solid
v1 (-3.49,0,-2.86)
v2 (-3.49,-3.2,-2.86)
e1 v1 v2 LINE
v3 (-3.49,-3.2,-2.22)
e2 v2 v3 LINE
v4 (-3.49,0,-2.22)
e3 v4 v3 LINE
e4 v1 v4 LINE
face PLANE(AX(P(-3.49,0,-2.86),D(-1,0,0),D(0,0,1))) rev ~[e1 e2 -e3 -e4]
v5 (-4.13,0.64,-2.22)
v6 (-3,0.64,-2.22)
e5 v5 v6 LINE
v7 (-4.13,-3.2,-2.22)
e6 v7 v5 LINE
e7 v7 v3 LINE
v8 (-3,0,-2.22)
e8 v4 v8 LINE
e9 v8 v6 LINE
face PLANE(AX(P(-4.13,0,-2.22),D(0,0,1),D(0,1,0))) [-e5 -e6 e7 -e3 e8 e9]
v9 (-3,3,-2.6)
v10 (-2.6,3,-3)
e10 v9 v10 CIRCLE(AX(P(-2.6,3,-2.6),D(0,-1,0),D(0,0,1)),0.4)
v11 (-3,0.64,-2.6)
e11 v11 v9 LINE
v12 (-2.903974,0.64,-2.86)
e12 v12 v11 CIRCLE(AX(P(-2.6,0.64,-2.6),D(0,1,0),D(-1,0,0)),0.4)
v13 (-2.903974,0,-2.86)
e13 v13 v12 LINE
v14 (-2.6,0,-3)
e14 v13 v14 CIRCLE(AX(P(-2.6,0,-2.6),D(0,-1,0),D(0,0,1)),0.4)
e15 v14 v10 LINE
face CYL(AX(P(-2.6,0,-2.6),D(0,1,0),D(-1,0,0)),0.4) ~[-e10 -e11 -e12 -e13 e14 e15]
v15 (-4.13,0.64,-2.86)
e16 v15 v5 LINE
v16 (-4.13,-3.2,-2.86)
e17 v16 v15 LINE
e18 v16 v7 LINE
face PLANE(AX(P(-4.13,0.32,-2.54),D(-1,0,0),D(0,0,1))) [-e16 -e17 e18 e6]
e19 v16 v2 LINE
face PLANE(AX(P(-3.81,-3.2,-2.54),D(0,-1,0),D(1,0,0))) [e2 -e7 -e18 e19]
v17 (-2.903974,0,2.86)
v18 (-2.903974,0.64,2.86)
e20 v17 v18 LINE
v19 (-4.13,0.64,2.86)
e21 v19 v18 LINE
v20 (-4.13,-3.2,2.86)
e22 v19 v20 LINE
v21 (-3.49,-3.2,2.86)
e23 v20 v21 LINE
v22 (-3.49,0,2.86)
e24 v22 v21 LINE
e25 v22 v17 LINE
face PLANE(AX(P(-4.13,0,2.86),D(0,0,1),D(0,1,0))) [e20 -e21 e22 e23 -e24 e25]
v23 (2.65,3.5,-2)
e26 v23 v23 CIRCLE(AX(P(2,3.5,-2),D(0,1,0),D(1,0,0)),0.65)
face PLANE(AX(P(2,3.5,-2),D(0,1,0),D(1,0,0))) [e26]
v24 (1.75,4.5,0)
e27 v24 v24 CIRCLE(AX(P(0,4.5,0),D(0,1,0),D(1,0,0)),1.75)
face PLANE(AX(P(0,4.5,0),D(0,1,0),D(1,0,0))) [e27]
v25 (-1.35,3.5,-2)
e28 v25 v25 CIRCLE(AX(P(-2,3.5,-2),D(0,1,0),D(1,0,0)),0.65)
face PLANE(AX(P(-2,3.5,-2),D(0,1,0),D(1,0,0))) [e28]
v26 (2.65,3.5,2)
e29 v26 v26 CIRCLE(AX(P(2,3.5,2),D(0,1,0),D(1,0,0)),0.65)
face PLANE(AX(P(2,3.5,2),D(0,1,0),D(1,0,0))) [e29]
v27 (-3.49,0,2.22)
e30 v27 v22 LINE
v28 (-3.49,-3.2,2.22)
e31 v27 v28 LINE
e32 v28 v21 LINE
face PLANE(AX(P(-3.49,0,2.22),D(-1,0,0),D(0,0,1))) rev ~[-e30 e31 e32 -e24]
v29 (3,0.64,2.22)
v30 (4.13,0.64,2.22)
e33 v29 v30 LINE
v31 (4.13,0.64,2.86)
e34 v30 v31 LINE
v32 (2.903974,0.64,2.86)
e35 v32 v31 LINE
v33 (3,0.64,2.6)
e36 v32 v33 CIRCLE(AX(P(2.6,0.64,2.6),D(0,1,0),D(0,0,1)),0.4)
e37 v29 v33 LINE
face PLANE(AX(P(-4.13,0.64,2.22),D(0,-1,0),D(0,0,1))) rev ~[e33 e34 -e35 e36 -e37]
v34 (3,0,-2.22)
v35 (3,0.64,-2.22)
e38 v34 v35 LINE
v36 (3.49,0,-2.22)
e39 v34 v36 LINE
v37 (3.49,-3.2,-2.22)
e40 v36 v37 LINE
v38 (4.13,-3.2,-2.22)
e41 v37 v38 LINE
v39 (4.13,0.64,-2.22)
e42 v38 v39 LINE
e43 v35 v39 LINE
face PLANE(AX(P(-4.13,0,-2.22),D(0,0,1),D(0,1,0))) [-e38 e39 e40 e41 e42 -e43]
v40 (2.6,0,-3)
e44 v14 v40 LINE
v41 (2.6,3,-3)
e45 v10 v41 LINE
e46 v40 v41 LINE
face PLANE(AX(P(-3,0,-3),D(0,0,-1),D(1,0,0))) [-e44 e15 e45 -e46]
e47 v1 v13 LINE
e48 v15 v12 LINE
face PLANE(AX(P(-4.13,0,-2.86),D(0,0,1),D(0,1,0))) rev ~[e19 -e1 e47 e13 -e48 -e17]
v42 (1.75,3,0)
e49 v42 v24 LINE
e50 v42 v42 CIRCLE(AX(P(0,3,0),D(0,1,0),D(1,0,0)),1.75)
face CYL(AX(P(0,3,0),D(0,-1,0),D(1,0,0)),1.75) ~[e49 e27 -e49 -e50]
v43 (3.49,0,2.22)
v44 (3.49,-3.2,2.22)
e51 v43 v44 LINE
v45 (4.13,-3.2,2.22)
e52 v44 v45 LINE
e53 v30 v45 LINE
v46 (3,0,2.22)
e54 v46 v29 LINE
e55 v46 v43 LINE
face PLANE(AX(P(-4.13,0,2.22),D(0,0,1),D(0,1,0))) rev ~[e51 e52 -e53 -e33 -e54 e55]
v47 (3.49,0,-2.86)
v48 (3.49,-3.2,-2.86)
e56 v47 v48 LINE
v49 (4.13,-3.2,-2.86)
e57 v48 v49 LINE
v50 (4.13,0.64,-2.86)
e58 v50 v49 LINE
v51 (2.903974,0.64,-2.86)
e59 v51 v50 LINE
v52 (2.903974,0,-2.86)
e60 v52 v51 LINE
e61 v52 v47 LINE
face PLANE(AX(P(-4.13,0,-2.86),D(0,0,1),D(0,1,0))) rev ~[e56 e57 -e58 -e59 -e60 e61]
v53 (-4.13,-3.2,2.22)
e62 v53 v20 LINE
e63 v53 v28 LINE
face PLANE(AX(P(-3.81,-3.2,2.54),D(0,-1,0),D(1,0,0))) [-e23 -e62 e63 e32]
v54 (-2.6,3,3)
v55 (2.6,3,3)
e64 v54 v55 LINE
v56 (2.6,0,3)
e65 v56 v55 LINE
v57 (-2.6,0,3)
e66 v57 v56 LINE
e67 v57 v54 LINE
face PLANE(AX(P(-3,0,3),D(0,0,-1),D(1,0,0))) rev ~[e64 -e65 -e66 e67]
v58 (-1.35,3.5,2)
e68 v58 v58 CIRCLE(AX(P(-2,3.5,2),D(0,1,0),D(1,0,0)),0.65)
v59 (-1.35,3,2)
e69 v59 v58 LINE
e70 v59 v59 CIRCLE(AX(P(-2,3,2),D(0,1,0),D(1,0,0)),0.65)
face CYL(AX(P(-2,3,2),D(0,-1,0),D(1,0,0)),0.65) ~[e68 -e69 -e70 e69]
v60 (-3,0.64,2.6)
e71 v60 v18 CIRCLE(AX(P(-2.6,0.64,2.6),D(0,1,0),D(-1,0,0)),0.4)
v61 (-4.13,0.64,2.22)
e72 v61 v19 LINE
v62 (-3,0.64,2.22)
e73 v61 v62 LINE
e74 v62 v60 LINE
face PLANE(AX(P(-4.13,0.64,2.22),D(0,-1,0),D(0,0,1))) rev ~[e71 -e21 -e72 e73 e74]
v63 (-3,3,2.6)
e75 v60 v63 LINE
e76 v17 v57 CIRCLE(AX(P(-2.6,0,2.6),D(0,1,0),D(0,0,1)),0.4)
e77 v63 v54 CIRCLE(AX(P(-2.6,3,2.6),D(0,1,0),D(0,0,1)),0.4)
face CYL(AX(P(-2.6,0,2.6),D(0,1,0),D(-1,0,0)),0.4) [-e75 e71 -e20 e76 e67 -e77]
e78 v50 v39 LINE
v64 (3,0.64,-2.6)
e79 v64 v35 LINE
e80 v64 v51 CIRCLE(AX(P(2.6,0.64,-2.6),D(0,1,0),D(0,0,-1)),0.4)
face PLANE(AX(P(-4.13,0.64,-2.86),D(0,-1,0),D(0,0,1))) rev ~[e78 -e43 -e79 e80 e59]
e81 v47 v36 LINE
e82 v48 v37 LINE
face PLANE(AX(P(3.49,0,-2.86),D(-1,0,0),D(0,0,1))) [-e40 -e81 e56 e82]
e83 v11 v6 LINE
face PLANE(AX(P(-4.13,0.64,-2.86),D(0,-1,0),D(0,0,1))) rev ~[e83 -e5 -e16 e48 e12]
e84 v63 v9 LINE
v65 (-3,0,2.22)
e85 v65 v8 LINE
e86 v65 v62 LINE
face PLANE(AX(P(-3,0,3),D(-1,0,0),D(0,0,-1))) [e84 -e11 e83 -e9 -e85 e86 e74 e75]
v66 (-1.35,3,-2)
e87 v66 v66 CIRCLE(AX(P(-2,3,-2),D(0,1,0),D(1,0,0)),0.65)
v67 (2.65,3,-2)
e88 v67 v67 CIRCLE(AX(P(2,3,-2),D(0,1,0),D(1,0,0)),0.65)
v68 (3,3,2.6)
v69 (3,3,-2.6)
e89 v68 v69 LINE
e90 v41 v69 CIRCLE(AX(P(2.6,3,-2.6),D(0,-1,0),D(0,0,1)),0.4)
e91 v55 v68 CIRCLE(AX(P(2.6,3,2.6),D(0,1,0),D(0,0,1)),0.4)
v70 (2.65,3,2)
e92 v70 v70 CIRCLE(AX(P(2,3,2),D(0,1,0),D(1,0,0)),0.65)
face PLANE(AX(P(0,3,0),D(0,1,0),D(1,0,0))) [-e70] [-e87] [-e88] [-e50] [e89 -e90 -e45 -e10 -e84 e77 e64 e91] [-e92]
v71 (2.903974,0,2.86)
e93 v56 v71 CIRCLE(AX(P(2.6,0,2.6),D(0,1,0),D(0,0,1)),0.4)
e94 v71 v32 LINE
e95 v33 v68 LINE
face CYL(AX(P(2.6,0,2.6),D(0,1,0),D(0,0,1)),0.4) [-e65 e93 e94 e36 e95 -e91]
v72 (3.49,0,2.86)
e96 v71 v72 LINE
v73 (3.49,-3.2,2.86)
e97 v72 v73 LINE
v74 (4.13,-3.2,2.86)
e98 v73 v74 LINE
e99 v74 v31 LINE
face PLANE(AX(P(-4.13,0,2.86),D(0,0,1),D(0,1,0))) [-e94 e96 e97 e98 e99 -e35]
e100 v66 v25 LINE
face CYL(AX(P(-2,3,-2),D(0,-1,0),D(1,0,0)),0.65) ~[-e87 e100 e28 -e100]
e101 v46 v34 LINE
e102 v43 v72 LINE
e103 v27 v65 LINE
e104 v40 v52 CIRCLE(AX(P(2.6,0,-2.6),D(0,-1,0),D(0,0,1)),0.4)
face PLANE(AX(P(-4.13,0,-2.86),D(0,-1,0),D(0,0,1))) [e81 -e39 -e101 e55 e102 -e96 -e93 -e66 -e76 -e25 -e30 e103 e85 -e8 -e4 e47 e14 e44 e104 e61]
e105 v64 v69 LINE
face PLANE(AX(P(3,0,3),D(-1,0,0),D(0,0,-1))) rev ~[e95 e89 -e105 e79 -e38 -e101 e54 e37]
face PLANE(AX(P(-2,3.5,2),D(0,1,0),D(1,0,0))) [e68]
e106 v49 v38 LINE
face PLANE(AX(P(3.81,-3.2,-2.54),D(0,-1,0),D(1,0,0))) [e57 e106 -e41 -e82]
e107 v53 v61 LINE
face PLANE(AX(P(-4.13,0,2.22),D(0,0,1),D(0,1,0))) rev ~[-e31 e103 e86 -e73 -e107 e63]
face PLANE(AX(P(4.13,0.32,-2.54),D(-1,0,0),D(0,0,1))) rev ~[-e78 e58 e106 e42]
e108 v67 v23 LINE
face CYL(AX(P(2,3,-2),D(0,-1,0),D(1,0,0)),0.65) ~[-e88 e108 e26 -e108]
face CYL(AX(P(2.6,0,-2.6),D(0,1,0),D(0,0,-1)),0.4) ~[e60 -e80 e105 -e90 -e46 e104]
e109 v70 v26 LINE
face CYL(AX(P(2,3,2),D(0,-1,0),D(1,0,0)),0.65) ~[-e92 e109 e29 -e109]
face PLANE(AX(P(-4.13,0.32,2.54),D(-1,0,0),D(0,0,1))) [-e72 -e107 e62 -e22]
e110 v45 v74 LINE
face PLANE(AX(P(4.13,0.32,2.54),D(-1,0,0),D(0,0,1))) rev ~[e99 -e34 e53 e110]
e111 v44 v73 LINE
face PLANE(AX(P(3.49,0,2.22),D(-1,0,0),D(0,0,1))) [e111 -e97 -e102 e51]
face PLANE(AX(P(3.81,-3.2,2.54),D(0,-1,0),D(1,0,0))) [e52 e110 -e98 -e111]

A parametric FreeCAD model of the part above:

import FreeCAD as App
import Part
import Sketcher

V = App.Vector
Q = App.Units.Quantity


def edges_at(feature, points):
    """Names of the edges that pass closest to the given points."""
    edges = feature.Shape.Edges
    near = lambda p: min(range(len(edges)), key=lambda i: edges[i].distToShape(Part.Vertex(*p))[0])
    return sorted({f"Edge{near(p) + 1}" for p in points})


def add_polygon(sketch, points):
    """Adds a closed chain of lines whose ends are joined by coincident constraints."""
    first, n = sketch.GeometryCount, len(points)
    for a, b in zip(points, points[1:] + points[:1]):
        sketch.addGeometry(Part.LineSegment(App.Vector(*a, 0), App.Vector(*b, 0)), False)
    for i in range(n):
        sketch.addConstraint(Sketcher.Constraint("Coincident", first + i, 2, first + (i + 1) % n, 1))

doc = App.newDocument("Part")
body = doc.addObject("PartDesign::Body", "Body")

# Sketch on XZ plane
sketch1 = doc.addObject("Sketcher::SketchObject", "Sketch")
body.addObject(sketch1)
sketch1.AttachmentSupport = (doc.XZ_Plane, [""])
sketch1.MapMode = "FlatFace"
add_polygon(sketch1, [(-3, -3), (-3, 3), (3, 3), (3, -3)])  # lines 0-3
sketch1.addConstraint([
    Sketcher.Constraint("Vertical", 0),
    Sketcher.Constraint("Horizontal", 1),
    Sketcher.Constraint("Vertical", 2),
    Sketcher.Constraint("Horizontal", 3),
    Sketcher.Constraint("Symmetric", 0, 2, 2, 2, -1, 1),
    Sketcher.Constraint("Equal", 3, 0),
    Sketcher.Constraint("DistanceX", 1, 1, 1, 2, Q("6 mm")),
])
pad1 = doc.addObject("PartDesign::Pad", "Pad")
body.addObject(pad1)
pad1.Profile = sketch1
pad1.Length = 3
pad1.Reversed = True

# Sketch on XZ plane
sketch2 = doc.addObject("Sketcher::SketchObject", "Sketch001")
body.addObject(sketch2)
sketch2.AttachmentSupport = (doc.XZ_Plane, [""])
sketch2.MapMode = "FlatFace"
sketch2.AttachmentOffset = App.Placement(V(0, 0, -3), App.Rotation())
sketch2.addGeometry(Part.Circle(V(0, 0, 0), V(0, 0, 1), 1.8), False)
sketch2.addConstraint([
    Sketcher.Constraint("Coincident", 0, 3, -1, 1),
    Sketcher.Constraint("Diameter", 0, Q("3.5 mm")),
])
pad2 = doc.addObject("PartDesign::Pad", "Pad001")
body.addObject(pad2)
pad2.Profile = sketch2
pad2.Length = 1.5
pad2.Reversed = True

# Sketch on XZ plane
sketch3 = doc.addObject("Sketcher::SketchObject", "Sketch002")
body.addObject(sketch3)
sketch3.AttachmentSupport = (doc.XZ_Plane, [""])
sketch3.MapMode = "FlatFace"
sketch3.AttachmentOffset = App.Placement(V(0, 0, -3), App.Rotation())
sketch3.addGeometry([
    Part.Circle(V(-2, -2, 0), V(0, 0, 1), 0.7),
    Part.Circle(V(-2, 2, 0), V(0, 0, 1), 0.7),
    Part.Circle(V(2, 2, 0), V(0, 0, 1), 0.7),
    Part.Circle(V(2, -2, 0), V(0, 0, 1), 0.7),
], False)
sketch3.addConstraint([
    Sketcher.Constraint("Equal", 0, 1),
    Sketcher.Constraint("Equal", 1, 2),
    Sketcher.Constraint("Equal", 2, 3),
    Sketcher.Constraint("Symmetric", 0, 3, 2, 3, -1, 1),
    Sketcher.Constraint("Symmetric", 1, 3, 3, 3, -1, 1),
    Sketcher.Constraint("Symmetric", 1, 3, 2, 3, -2),
    Sketcher.Constraint("Diameter", 0, Q("1.3 mm")),
    Sketcher.Constraint("DistanceX", 0, 3, -1, 1, Q("2 mm")),
    Sketcher.Constraint("DistanceY", 0, 3, -1, 1, Q("2 mm")),
])
pad3 = doc.addObject("PartDesign::Pad", "Pad002")
body.addObject(pad3)
pad3.Profile = sketch3
pad3.Length = 0.5
pad3.Reversed = True
doc.recompute()

fillet = doc.addObject("PartDesign::Fillet", "Fillet")
body.addObject(fillet)
fillet.Base = (pad3, edges_at(pad3, [
    (3, 1.5, 3),
    (-3, 1.5, 3),
    (-3, 1.5, -3),
    (3, 1.5, -3),
]))
fillet.Radius = 0.4
body2 = doc.addObject("PartDesign::Body", "Body001")

# Sketch on XZ plane
sketch4 = doc.addObject("Sketcher::SketchObject", "Sketch003")
body2.addObject(sketch4)
sketch4.AttachmentSupport = (doc.getObject("XZ_Plane001"), [""])
sketch4.MapMode = "FlatFace"
add_polygon(sketch4, [(-4.1, 2.9), (-4.1, 2.2), (-3.5, 2.2), (-3.5, 2.9)])  # lines 0-3
sketch4.addConstraint([
    Sketcher.Constraint("Vertical", 0),
    Sketcher.Constraint("Horizontal", 1),
    Sketcher.Constraint("Vertical", 2),
    Sketcher.Constraint("Horizontal", 3),
    Sketcher.Constraint("Equal", 3, 0),
    Sketcher.Constraint("DistanceX", 1, 1, 1, 2, Q("0.64 mm")),
    Sketcher.Constraint("DistanceX", 0, 2, -1, 1, Q("4.13 mm")),
    Sketcher.Constraint("DistanceY", -1, 1, 0, 2, Q("2.22 mm")),
])
pad4 = doc.addObject("PartDesign::Pad", "Pad003")
body2.addObject(pad4)
pad4.Profile = sketch4
pad4.Length = 3.2
body3 = doc.addObject("PartDesign::Body", "Body002")

# Sketch on XZ plane
sketch5 = doc.addObject("Sketcher::SketchObject", "Sketch004")
body3.addObject(sketch5)
sketch5.AttachmentSupport = (doc.getObject("XZ_Plane002"), [""])
sketch5.MapMode = "FlatFace"
add_polygon(sketch5, [(3.5, 2.9), (3.5, 2.2), (4.1, 2.2), (4.1, 2.9)])  # lines 0-3
sketch5.addConstraint([
    Sketcher.Constraint("Vertical", 0),
    Sketcher.Constraint("Horizontal", 1),
    Sketcher.Constraint("Vertical", 2),
    Sketcher.Constraint("Horizontal", 3),
    Sketcher.Constraint("Equal", 3, 0),
    Sketcher.Constraint("DistanceX", 1, 1, 1, 2, Q("0.64 mm")),
    Sketcher.Constraint("DistanceX", -1, 1, 0, 2, Q("3.49 mm")),
    Sketcher.Constraint("DistanceY", -1, 1, 0, 2, Q("2.22 mm")),
])
pad5 = doc.addObject("PartDesign::Pad", "Pad004")
body3.addObject(pad5)
pad5.Profile = sketch5
pad5.Length = 3.2
body4 = doc.addObject("PartDesign::Body", "Body003")

# Sketch on XZ plane
sketch6 = doc.addObject("Sketcher::SketchObject", "Sketch005")
body4.addObject(sketch6)
sketch6.AttachmentSupport = (doc.getObject("XZ_Plane003"), [""])
sketch6.MapMode = "FlatFace"
add_polygon(sketch6, [(3.5, -2.2), (3.5, -2.9), (4.1, -2.9), (4.1, -2.2)])  # lines 0-3
sketch6.addConstraint([
    Sketcher.Constraint("Vertical", 0),
    Sketcher.Constraint("Horizontal", 1),
    Sketcher.Constraint("Vertical", 2),
    Sketcher.Constraint("Horizontal", 3),
    Sketcher.Constraint("Equal", 3, 0),
    Sketcher.Constraint("DistanceX", 1, 1, 1, 2, Q("0.64 mm")),
    Sketcher.Constraint("DistanceX", -1, 1, 0, 2, Q("3.49 mm")),
    Sketcher.Constraint("DistanceY", 0, 2, -1, 1, Q("2.86 mm")),
])
pad6 = doc.addObject("PartDesign::Pad", "Pad005")
body4.addObject(pad6)
pad6.Profile = sketch6
pad6.Length = 3.2
body5 = doc.addObject("PartDesign::Body", "Body004")

# Sketch on XZ plane
sketch7 = doc.addObject("Sketcher::SketchObject", "Sketch006")
body5.addObject(sketch7)
sketch7.AttachmentSupport = (doc.getObject("XZ_Plane004"), [""])
sketch7.MapMode = "FlatFace"
add_polygon(sketch7, [(-4.1, -2.2), (-4.1, -2.9), (-3.5, -2.9), (-3.5, -2.2)])  # lines 0-3
sketch7.addConstraint([
    Sketcher.Constraint("Vertical", 0),
    Sketcher.Constraint("Horizontal", 1),
    Sketcher.Constraint("Vertical", 2),
    Sketcher.Constraint("Horizontal", 3),
    Sketcher.Constraint("Equal", 3, 0),
    Sketcher.Constraint("DistanceX", 1, 1, 1, 2, Q("0.64 mm")),
    Sketcher.Constraint("DistanceX", 0, 2, -1, 1, Q("4.13 mm")),
    Sketcher.Constraint("DistanceY", 0, 2, -1, 1, Q("2.86 mm")),
])
pad7 = doc.addObject("PartDesign::Pad", "Pad006")
body5.addObject(pad7)
pad7.Profile = sketch7
pad7.Length = 3.2
body.AllowCompound = True
doc.recompute()

boolean = doc.addObject("PartDesign::Boolean", "Boolean")
body.addObject(boolean)
boolean.Type = "Fuse"
boolean.addObjects([body2])
doc.recompute()

boolean2 = doc.addObject("PartDesign::Boolean", "Boolean001")
body.addObject(boolean2)
boolean2.Type = "Fuse"
boolean2.addObjects([body3])
doc.recompute()

boolean3 = doc.addObject("PartDesign::Boolean", "Boolean002")
body.addObject(boolean3)
boolean3.Type = "Fuse"
boolean3.addObjects([body4])
doc.recompute()

boolean4 = doc.addObject("PartDesign::Boolean", "Boolean003")
body.addObject(boolean4)
boolean4.Type = "Fuse"
boolean4.addObjects([body5])

# Sketch on YZ plane
sketch8 = doc.addObject("Sketcher::SketchObject", "Sketch007")
body.addObject(sketch8)
sketch8.AttachmentSupport = (doc.YZ_Plane, [""])
sketch8.MapMode = "FlatFace"
sketch8.AttachmentOffset = App.Placement(V(0, 0, -4.13), App.Rotation())
add_polygon(sketch8, [(0.6, -2.9), (0, -2.9), (0, -2.2), (0.6, -2.2)])  # lines 0-3
add_polygon(sketch8, [(0.6, 2.2), (0, 2.2), (0, 2.9), (0.6, 2.9)])  # lines 4-7
sketch8.addConstraint([
    Sketcher.Constraint("Horizontal", 0),
    Sketcher.Constraint("Vertical", 1),
    Sketcher.Constraint("Horizontal", 2),
    Sketcher.Constraint("Vertical", 3),
    Sketcher.Constraint("Horizontal", 4),
    Sketcher.Constraint("Vertical", 5),
    Sketcher.Constraint("Horizontal", 6),
    Sketcher.Constraint("Vertical", 7),
    Sketcher.Constraint("Symmetric", 1, 2, 4, 2, -1, 1),
    Sketcher.Constraint("Symmetric", 0, 2, 5, 2, -1),
    Sketcher.Constraint("Vertical", 3, 2, 6, 2),
    Sketcher.Constraint("Equal", 6, 1),
    Sketcher.Constraint("DistanceX", 0, 2, 0, 1, Q("0.64 mm")),
    Sketcher.Constraint("DistanceY", 0, 2, -1, 1, Q("2.86 mm")),
])
pad8 = doc.addObject("PartDesign::Pad", "Pad007")
body.addObject(pad8)
pad8.Profile = sketch8
pad8.Length = 8.26

doc.recompute()
